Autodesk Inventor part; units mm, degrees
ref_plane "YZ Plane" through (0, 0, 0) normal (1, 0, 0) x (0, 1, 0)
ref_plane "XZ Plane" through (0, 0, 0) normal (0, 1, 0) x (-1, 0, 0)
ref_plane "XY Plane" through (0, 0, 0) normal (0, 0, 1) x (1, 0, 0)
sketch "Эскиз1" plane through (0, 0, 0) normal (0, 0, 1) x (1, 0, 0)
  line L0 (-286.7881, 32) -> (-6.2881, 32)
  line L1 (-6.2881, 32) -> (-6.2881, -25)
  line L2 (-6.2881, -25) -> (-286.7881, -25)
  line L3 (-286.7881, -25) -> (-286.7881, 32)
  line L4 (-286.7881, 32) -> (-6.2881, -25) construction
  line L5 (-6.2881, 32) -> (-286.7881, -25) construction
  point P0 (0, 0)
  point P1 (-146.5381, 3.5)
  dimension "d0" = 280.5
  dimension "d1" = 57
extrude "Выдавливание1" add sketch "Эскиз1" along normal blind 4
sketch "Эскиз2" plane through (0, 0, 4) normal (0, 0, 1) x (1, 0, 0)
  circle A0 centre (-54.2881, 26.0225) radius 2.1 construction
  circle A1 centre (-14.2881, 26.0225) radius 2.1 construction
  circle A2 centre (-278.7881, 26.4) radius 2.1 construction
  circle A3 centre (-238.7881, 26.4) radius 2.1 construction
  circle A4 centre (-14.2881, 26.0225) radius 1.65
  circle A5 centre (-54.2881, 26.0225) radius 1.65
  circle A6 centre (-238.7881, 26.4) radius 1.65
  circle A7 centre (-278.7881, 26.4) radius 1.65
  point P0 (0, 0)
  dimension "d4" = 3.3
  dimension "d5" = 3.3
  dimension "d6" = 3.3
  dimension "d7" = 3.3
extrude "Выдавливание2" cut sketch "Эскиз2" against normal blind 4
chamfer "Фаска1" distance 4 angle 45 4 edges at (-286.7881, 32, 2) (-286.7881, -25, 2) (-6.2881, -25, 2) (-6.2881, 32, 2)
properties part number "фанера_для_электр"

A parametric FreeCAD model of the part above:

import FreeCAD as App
import Part
import Sketcher


def edges_at(feature, points):
    """Names of the edges that pass closest to the given points."""
    edges = feature.Shape.Edges
    near = lambda p: min(range(len(edges)), key=lambda i: edges[i].distToShape(Part.Vertex(*p))[0])
    return sorted({f"Edge{near(p) + 1}" for p in points})

doc = App.newDocument("Part")
body = doc.addObject("PartDesign::Body", "Body")

sketch1 = body.newObject("Sketcher::SketchObject", "Sketch")
sketch1.AttachmentSupport = (doc.getObject("XY_Plane"), [""])
sketch1.MapMode = "FlatFace"
sketch1.addGeometry(Part.LineSegment(App.Vector(-6.2881, 32, 0), App.Vector(-286.7881, 32, 0)), False)
sketch1.addGeometry(Part.LineSegment(App.Vector(-286.7881, 32, 0), App.Vector(-286.7881, -25, 0)), False)
sketch1.addGeometry(Part.LineSegment(App.Vector(-286.7881, -25, 0), App.Vector(-6.2881, -25, 0)), False)
sketch1.addGeometry(Part.LineSegment(App.Vector(-6.2881, -25, 0), App.Vector(-6.2881, 32, 0)), False)
sketch1.addConstraint(Sketcher.Constraint("Coincident", 0, 2, 1, 1))
sketch1.addConstraint(Sketcher.Constraint("Coincident", 1, 2, 2, 1))
sketch1.addConstraint(Sketcher.Constraint("Coincident", 2, 2, 3, 1))
sketch1.addConstraint(Sketcher.Constraint("Coincident", 3, 2, 0, 1))
sketch1.addConstraint(Sketcher.Constraint("Horizontal", 0))
sketch1.addConstraint(Sketcher.Constraint("Vertical", 1))
sketch1.addConstraint(Sketcher.Constraint("Horizontal", 2))
sketch1.addConstraint(Sketcher.Constraint("Vertical", 3))
sketch1.addConstraint(Sketcher.Constraint("DistanceY", 1, 2, 1, 1, 57.0))
sketch1.addConstraint(Sketcher.Constraint("DistanceX", 0, 2, 0, 1, 280.5))
sketch1.addConstraint(Sketcher.Constraint("DistanceY", -1, 1, 0, 2, 32.0))
sketch1.addConstraint(Sketcher.Constraint("DistanceX", 0, 2, -1, 1, 286.788))
pad1 = body.newObject("PartDesign::Pad", "Pad")
pad1.Profile = sketch1
pad1.Length = 4

sketch2 = body.newObject("Sketcher::SketchObject", "Sketch001")
sketch2.AttachmentSupport = (doc.getObject("XY_Plane"), [""])
sketch2.MapMode = "FlatFace"
sketch2.AttachmentOffset = App.Placement(App.Vector(0, 0, 4), App.Rotation())
sketch2.addGeometry(Part.Circle(App.Vector(-14.2881, 26.0225, 0), App.Vector(0, 0, 1), 1.65), False)
sketch2.addGeometry(Part.Circle(App.Vector(-54.2881, 26.0225, 0), App.Vector(0, 0, 1), 1.65), False)
sketch2.addGeometry(Part.Circle(App.Vector(-238.7881, 26.4, 0), App.Vector(0, 0, 1), 1.65), False)
sketch2.addGeometry(Part.Circle(App.Vector(-278.7881, 26.4, 0), App.Vector(0, 0, 1), 1.65), False)
sketch2.addConstraint(Sketcher.Constraint("Equal", 0, 1))
sketch2.addConstraint(Sketcher.Constraint("Equal", 1, 2))
sketch2.addConstraint(Sketcher.Constraint("Equal", 2, 3))
sketch2.addConstraint(Sketcher.Constraint("Horizontal", 0, 3, 1, 3))
sketch2.addConstraint(Sketcher.Constraint("Horizontal", 2, 3, 3, 3))
sketch2.addConstraint(Sketcher.Constraint("Diameter", 0, 3.3))
sketch2.addConstraint(Sketcher.Constraint("DistanceX", 1, 3, 0, 3, 40.0))
sketch2.addConstraint(Sketcher.Constraint("DistanceX", 3, 3, 2, 3, 40.0))
sketch2.addConstraint(Sketcher.Constraint("DistanceY", -1, 1, 2, 3, 26.4))
sketch2.addConstraint(Sketcher.Constraint("DistanceX", 2, 3, 1, 3, 184.5))
sketch2.addConstraint(Sketcher.Constraint("DistanceX", 0, 3, -1, 1, 14.288))
sketch2.addConstraint(Sketcher.Constraint("DistanceY", -1, 1, 0, 3, 26.0225))
pocket1 = body.newObject("PartDesign::Pocket", "Pocket")
pocket1.Profile = sketch2
pocket1.Length = 4
doc.recompute()

chamfer = body.newObject("PartDesign::Chamfer", "Chamfer")
chamfer.Base = (pocket1, edges_at(pocket1, [
    (-286.788, 32, 2),
    (-286.788, -25, 2),
    (-6.288, -25, 2),
    (-6.288, 32, 2),
]))
chamfer.Size = 4

doc.recompute()
